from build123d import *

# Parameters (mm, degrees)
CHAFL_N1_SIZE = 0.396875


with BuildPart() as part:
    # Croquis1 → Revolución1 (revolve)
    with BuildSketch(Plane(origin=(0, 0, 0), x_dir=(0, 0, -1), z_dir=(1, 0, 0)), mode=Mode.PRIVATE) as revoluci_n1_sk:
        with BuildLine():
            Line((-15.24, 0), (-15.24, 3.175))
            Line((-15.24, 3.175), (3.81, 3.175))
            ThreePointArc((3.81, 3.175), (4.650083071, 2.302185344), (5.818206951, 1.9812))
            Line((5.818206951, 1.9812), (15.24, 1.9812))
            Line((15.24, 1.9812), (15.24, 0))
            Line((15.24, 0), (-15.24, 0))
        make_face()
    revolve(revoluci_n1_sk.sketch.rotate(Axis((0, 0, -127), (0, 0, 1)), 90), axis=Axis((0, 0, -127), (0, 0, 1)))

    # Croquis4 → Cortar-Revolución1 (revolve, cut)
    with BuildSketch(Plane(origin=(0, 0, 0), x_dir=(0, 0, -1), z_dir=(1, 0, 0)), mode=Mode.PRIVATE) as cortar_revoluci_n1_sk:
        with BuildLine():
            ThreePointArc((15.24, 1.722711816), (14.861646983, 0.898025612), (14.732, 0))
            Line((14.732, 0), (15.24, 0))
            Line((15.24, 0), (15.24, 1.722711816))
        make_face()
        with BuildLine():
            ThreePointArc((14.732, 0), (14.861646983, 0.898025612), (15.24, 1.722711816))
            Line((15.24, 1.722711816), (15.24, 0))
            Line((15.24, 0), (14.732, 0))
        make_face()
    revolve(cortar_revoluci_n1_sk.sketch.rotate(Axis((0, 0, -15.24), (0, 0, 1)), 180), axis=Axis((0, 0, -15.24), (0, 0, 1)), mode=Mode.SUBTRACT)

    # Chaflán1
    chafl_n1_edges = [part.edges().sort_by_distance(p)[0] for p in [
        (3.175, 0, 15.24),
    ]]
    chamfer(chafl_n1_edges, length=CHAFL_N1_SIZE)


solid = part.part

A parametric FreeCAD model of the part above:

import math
import FreeCAD as App
import Part
import Sketcher
Q = App.Units.Quantity


def edges_at(feature, points):
    """Names of the edges that pass closest to the given points."""
    edges = feature.Shape.Edges
    near = lambda p: min(range(len(edges)), key=lambda i: edges[i].distToShape(Part.Vertex(*p))[0])
    return sorted({f"Edge{near(p) + 1}" for p in points})

doc = App.newDocument("Part")
body = doc.addObject("PartDesign::Body", "Body")

# Sketch on YZ plane
sketch1 = doc.addObject("Sketcher::SketchObject", "Sketch")
body.addObject(sketch1)
sketch1.AttachmentSupport = (doc.YZ_Plane, [""])
sketch1.MapMode = "FlatFace"
sketch1.addGeometry(Part.LineSegment(App.Vector(3.2, 15.2, 0), App.Vector(0, 15.2, 0)), False)
sketch1.addGeometry(Part.LineSegment(App.Vector(0, 15.2, 0), App.Vector(0, -15.2, 0)), False)
sketch1.addGeometry(Part.LineSegment(App.Vector(0, -15.2, 0), App.Vector(2, -15.2, 0)), False)
sketch1.addGeometry(Part.LineSegment(App.Vector(2, -15.2, 0), App.Vector(2, -5.8, 0)), False)
sketch1.addGeometry(Part.ArcOfCircle(Part.Circle(App.Vector(4.3, -5.8, 0), App.Vector(0, 0, 1), 2.3), math.radians(119), math.radians(180)), False)
sketch1.addGeometry(Part.LineSegment(App.Vector(3.2, -3.8, 0), App.Vector(3.2, 15.2, 0)), False)
sketch1.addConstraint(Sketcher.Constraint("Coincident", 0, 2, 1, 1))
sketch1.addConstraint(Sketcher.Constraint("Coincident", 1, 2, 2, 1))
sketch1.addConstraint(Sketcher.Constraint("Coincident", 2, 2, 3, 1))
sketch1.addConstraint(Sketcher.Constraint("Tangent", 3, 2, 4, 2))
sketch1.addConstraint(Sketcher.Constraint("Coincident", 4, 1, 5, 1))
sketch1.addConstraint(Sketcher.Constraint("Coincident", 5, 2, 0, 1))
sketch1.addConstraint(Sketcher.Constraint("Horizontal", 0))
sketch1.addConstraint(Sketcher.Constraint("Vertical", 1))
sketch1.addConstraint(Sketcher.Constraint("Horizontal", 2))
sketch1.addConstraint(Sketcher.Constraint("Vertical", 3))
sketch1.addConstraint(Sketcher.Constraint("Vertical", 5))
sketch1.addConstraint(Sketcher.Constraint("Symmetric", 0, 2, 1, 2, -1, 1))
sketch1.addConstraint(Sketcher.Constraint("Radius", 4, Q("0.09 in")))
sketch1.addConstraint(Sketcher.Constraint("DistanceY", 1, 2, 1, 1, Q("1.2 in")))
sketch1.addConstraint(Sketcher.Constraint("DistanceY", 5, 1, 5, 2, Q("0.75 in")))
sketch1.addConstraint(Sketcher.Constraint("DistanceX", 0, 2, 0, 1, Q("0.125 in")))
sketch1.addConstraint(Sketcher.Constraint("DistanceX", 2, 1, 2, 2, Q("0.078 in")))
revolution = doc.addObject("PartDesign::Revolution", "Revolution")
body.addObject(revolution)
revolution.Profile = sketch1
revolution.ReferenceAxis = (sketch1, ["V_Axis"])
revolution.Angle = 360

# Sketch on YZ plane
sketch2 = doc.addObject("Sketcher::SketchObject", "Sketch001")
body.addObject(sketch2)
sketch2.AttachmentSupport = (doc.YZ_Plane, [""])
sketch2.MapMode = "FlatFace"
sketch2.addGeometry(Part.ArcOfCircle(Part.Circle(App.Vector(0, -17.9, 0), App.Vector(0, 0, 1), 3.2), math.radians(57), math.radians(90)), False)
sketch2.addGeometry(Part.LineSegment(App.Vector(0, -14.7, 0), App.Vector(0, -15.2, 0)), False)
sketch2.addGeometry(Part.LineSegment(App.Vector(0, -15.2, 0), App.Vector(1.7, -15.2, 0)), False)
sketch2.addConstraint(Sketcher.Constraint("Coincident", 0, 2, 1, 1))
sketch2.addConstraint(Sketcher.Constraint("Coincident", 1, 2, 2, 1))
sketch2.addConstraint(Sketcher.Constraint("Coincident", 2, 2, 0, 1))
sketch2.addConstraint(Sketcher.Constraint("Vertical", 1))
sketch2.addConstraint(Sketcher.Constraint("Horizontal", 2))
sketch2.addConstraint(Sketcher.Constraint("PointOnObject", 0, 3, -2))
sketch2.addConstraint(Sketcher.Constraint("PointOnObject", 0, 2, -2))
sketch2.addConstraint(Sketcher.Constraint("Radius", 0, Q("0.125 in")))
sketch2.addConstraint(Sketcher.Constraint("DistanceY", 1, 2, 1, 1, Q("0.02 in")))
sketch2.addConstraint(Sketcher.Constraint("DistanceY", 1, 2, -1, 1, Q("0.6 in")))
groove = doc.addObject("PartDesign::Groove", "Groove")
body.addObject(groove)
groove.Profile = sketch2
groove.ReferenceAxis = (sketch2, ["V_Axis"])
groove.Angle = 360
doc.recompute()

chamfer = doc.addObject("PartDesign::Chamfer", "Chamfer")
body.addObject(chamfer)
chamfer.Base = (groove, edges_at(groove, [(3.175, 0, 15.24)]))
chamfer.Size = Q("0.015625 in")

doc.recompute()
